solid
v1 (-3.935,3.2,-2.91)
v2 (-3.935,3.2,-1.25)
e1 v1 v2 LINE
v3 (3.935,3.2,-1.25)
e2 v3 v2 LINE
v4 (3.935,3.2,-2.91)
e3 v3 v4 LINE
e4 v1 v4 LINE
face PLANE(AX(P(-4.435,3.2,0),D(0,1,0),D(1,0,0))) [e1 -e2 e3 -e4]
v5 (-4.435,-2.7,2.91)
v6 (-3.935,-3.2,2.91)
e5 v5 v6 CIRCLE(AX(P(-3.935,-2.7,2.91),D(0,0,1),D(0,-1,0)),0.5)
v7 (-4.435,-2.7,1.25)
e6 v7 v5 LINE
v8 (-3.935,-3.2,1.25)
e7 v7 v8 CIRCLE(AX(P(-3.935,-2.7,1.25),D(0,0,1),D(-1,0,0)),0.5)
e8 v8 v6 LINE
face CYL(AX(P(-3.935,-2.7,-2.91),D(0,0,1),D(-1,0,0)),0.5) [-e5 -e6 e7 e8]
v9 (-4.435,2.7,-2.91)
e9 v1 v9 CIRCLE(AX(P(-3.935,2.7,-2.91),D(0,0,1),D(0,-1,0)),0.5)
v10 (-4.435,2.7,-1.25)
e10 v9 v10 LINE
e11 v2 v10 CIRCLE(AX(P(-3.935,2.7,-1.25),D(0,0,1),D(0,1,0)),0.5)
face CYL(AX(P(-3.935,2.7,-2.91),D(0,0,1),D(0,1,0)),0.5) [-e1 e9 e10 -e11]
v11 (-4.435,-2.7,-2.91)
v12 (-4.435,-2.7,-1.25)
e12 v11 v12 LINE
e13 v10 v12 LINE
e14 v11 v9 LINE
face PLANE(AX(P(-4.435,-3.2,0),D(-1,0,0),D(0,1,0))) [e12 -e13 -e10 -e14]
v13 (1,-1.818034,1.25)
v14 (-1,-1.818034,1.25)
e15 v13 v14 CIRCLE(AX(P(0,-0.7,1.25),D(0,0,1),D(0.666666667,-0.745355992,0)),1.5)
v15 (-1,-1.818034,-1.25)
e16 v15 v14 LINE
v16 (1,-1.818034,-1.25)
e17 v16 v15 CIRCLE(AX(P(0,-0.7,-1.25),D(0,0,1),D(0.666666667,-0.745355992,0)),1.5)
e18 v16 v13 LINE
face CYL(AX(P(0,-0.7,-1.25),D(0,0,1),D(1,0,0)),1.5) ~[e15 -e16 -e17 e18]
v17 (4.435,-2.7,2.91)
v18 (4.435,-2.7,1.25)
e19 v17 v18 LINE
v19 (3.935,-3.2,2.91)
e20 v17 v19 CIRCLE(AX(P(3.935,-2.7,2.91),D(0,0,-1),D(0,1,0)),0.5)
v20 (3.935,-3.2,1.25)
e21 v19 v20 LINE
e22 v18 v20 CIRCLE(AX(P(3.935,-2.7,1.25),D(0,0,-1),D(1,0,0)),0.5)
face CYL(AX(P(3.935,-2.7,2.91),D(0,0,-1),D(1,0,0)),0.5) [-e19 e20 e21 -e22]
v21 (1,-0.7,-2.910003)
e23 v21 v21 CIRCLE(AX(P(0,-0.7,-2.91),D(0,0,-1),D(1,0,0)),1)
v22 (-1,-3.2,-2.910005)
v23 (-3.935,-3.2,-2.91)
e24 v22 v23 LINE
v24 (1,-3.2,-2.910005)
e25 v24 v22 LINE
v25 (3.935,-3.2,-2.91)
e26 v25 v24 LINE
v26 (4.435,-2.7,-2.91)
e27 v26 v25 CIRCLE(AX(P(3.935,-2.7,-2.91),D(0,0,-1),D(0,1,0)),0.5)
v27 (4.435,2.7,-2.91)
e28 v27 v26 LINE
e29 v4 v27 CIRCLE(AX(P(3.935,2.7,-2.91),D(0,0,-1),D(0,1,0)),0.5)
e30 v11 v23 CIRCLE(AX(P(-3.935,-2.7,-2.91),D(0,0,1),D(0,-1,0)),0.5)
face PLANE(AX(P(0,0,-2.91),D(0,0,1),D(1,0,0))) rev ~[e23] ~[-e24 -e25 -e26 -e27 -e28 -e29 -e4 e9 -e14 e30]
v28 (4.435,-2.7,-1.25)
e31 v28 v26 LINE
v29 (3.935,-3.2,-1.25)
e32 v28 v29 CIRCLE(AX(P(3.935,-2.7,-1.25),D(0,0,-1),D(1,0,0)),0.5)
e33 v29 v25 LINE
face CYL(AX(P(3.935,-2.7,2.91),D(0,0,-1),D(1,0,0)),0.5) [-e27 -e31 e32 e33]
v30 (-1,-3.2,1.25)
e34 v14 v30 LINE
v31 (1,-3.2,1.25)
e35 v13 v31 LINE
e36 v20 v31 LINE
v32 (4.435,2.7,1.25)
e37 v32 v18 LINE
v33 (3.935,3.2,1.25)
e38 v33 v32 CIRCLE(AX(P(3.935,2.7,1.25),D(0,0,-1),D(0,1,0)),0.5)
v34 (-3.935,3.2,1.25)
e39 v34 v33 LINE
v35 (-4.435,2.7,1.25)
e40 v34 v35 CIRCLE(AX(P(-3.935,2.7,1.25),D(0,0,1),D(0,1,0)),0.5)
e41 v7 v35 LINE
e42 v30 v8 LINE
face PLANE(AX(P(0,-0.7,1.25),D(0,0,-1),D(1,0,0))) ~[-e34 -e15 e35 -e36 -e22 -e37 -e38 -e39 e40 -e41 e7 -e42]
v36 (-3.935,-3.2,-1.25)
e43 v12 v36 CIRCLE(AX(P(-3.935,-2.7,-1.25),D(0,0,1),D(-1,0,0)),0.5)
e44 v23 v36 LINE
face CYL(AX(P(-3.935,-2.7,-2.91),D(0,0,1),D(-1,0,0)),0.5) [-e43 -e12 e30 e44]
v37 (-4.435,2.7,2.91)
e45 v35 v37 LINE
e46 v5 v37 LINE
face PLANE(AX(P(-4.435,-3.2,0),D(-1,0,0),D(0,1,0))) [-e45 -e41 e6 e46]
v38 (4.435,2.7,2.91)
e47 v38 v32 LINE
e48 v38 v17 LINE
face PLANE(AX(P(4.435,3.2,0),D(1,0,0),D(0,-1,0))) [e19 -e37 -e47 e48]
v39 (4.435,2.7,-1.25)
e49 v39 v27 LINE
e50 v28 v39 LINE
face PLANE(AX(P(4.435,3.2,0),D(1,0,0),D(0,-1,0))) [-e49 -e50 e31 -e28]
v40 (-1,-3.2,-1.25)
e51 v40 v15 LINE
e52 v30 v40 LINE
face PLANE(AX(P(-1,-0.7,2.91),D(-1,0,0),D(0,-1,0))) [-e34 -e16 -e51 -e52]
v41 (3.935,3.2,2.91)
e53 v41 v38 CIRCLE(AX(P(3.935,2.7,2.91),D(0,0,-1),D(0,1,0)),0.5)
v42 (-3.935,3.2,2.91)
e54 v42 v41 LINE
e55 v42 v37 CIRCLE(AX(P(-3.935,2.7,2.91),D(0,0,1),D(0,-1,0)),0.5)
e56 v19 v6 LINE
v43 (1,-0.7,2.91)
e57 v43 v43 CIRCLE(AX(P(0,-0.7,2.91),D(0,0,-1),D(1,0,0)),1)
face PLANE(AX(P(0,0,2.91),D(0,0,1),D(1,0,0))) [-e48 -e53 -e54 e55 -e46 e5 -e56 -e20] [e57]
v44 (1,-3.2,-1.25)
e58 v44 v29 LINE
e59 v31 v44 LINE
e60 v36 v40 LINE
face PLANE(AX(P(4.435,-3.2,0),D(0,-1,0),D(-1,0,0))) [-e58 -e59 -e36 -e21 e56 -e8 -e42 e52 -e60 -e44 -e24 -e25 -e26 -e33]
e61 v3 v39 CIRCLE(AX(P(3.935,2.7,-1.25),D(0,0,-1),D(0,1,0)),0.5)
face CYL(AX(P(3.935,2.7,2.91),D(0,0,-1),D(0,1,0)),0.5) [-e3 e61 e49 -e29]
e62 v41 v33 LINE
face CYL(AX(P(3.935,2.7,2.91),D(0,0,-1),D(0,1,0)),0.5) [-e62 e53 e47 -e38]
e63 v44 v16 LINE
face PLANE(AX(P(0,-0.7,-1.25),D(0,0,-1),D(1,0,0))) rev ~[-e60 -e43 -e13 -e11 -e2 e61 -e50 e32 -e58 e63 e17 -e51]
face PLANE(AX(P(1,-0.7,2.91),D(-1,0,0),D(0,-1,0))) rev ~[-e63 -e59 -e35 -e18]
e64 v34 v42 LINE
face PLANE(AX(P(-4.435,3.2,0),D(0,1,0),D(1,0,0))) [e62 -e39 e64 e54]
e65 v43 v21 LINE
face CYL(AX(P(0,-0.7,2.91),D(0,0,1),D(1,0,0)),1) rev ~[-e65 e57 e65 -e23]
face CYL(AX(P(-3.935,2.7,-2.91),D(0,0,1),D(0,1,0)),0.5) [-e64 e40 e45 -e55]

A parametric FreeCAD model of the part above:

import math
import FreeCAD as App
import Part
import Sketcher
from FreeCAD import Vector
Q = App.Units.Quantity


def edges_at(feature, points):
    """Names of the edges that pass closest to the given points."""
    edges = feature.Shape.Edges
    near = lambda p: min(range(len(edges)), key=lambda i: edges[i].distToShape(Part.Vertex(*p))[0])
    return sorted({f"Edge{near(p) + 1}" for p in points})


def add_polygon(sketch, points):
    """Adds a closed chain of lines whose ends are joined by coincident constraints."""
    first, n = sketch.GeometryCount, len(points)
    for a, b in zip(points, points[1:] + points[:1]):
        sketch.addGeometry(Part.LineSegment(App.Vector(*a, 0), App.Vector(*b, 0)), False)
    for i in range(n):
        sketch.addConstraint(Sketcher.Constraint("Coincident", first + i, 2, first + (i + 1) % n, 1))

doc = App.newDocument("Part")
body = doc.addObject("PartDesign::Body", "Body")

sketch1 = body.newObject("Sketcher::SketchObject", "Sketch")
sketch1.AttachmentSupport = (doc.getObject("XY_Plane"), [""])
sketch1.MapMode = "FlatFace"
add_polygon(sketch1, [(4, 3), (-4, 3), (-4, -3), (4, -3)])
sketch1.addConstraint(Sketcher.Constraint("Horizontal", 0))
sketch1.addConstraint(Sketcher.Constraint("Vertical", 1))
sketch1.addConstraint(Sketcher.Constraint("Horizontal", 2))
sketch1.addConstraint(Sketcher.Constraint("Vertical", 3))
sketch1.addConstraint(Sketcher.Constraint("Symmetric", 0, 2, 2, 2, -1, 1))
sketch1.addConstraint(Sketcher.Constraint("DistanceY", 1, 2, 1, 1, Q("6.4 mm")))
sketch1.addConstraint(Sketcher.Constraint("DistanceX", 0, 2, 0, 1, Q("8.87 mm")))
pad1 = body.newObject("PartDesign::Pad", "Pad")
pad1.Profile = sketch1
pad1.Length = 5.82
pad1.Midplane = True
doc.recompute()

fillet = body.newObject("PartDesign::Fillet", "Fillet")
fillet.Base = (pad1, edges_at(pad1, [
    (4.435, -3.2, 0),
    (4.435, 3.2, 0),
    (-4.435, 3.2, 0),
    (-4.435, -3.2, 0),
]))
fillet.Radius = 0.5

sketch2 = body.newObject("Sketcher::SketchObject", "Sketch001")
sketch2.AttachmentSupport = (doc.getObject("XY_Plane"), [""])
sketch2.MapMode = "FlatFace"
sketch2.AttachmentOffset = App.Placement(Vector(0, 0, 2.91), App.Rotation())
sketch2.addGeometry(Part.Circle(Vector(0, -0.7, 0), Vector(0, 0, 1), 1), False)
sketch2.addConstraint(Sketcher.Constraint("PointOnObject", 0, 3, -2))
sketch2.addConstraint(Sketcher.Constraint("Diameter", 0, Q("2 mm")))
sketch2.addConstraint(Sketcher.Constraint("DistanceY", 0, 3, -1, 1, Q("0.7 mm")))
pocket1 = body.newObject("PartDesign::Pocket", "Pocket")
pocket1.Profile = sketch2
pocket1.Type = "ThroughAll"

sketch3 = body.newObject("Sketcher::SketchObject", "Sketch002")
sketch3.AttachmentSupport = (doc.getObject("XZ_Plane"), [""])
sketch3.MapMode = "FlatFace"
sketch3.AttachmentOffset = App.Placement(Vector(0, 0, 0.7), App.Rotation())
add_polygon(sketch3, [(1.5, -1.2), (1.5, 1.2), (6.2, 1.2), (6.2, -1.2)])
sketch3.addConstraint(Sketcher.Constraint("Vertical", 0))
sketch3.addConstraint(Sketcher.Constraint("Horizontal", 1))
sketch3.addConstraint(Sketcher.Constraint("Vertical", 2))
sketch3.addConstraint(Sketcher.Constraint("Horizontal", 3))
sketch3.addConstraint(Sketcher.Constraint("DistanceX", -1, 1, 0, 2, Q("1.5 mm")))
sketch3.addConstraint(Sketcher.Constraint("DistanceY", 0, 1, 0, 2, Q("2.5 mm")))
sketch3.addConstraint(Sketcher.Constraint("DistanceY", -1, 1, 0, 2, Q("1.25 mm")))
sketch3.addConstraint(Sketcher.Constraint("DistanceX", 1, 1, 1, 2, Q("4.6692 mm")))
groove = body.newObject("PartDesign::Groove", "Groove")
groove.Profile = sketch3
groove.ReferenceAxis = (sketch3, ["V_Axis"])
groove.Angle = 360

sketch4 = body.newObject("Sketcher::SketchObject", "Sketch003")
sketch4.AttachmentSupport = (doc.getObject("XY_Plane"), [""])
sketch4.MapMode = "FlatFace"
sketch4.AttachmentOffset = App.Placement(Vector(0, 0, 2.91), App.Rotation())
sketch4.addGeometry(Part.LineSegment(Vector(1, -3.2, 0), Vector(1, -0.7, 0)), False)
sketch4.addGeometry(Part.ArcOfCircle(Part.Circle(Vector(0, -0.7, 0), Vector(0, 0, 1), 1), math.radians(180), math.radians(360)), False)
sketch4.addGeometry(Part.LineSegment(Vector(-1, -0.7, 0), Vector(-1, -3.2, 0)), False)
sketch4.addGeometry(Part.LineSegment(Vector(-1, -3.2, 0), Vector(1, -3.2, 0)), False)
sketch4.addConstraint(Sketcher.Constraint("Tangent", 0, 2, 1, 2))
sketch4.addConstraint(Sketcher.Constraint("Tangent", 1, 1, 2, 1))
sketch4.addConstraint(Sketcher.Constraint("Coincident", 2, 2, 3, 1))
sketch4.addConstraint(Sketcher.Constraint("Coincident", 3, 2, 0, 1))
sketch4.addConstraint(Sketcher.Constraint("Vertical", 0))
sketch4.addConstraint(Sketcher.Constraint("Vertical", 2))
sketch4.addConstraint(Sketcher.Constraint("Horizontal", 3))
sketch4.addConstraint(Sketcher.Constraint("PointOnObject", 1, 3, -2))
sketch4.addConstraint(Sketcher.Constraint("Radius", 1, Q("1 mm")))
sketch4.addConstraint(Sketcher.Constraint("DistanceY", 0, 1, 0, 2, Q("2.5 mm")))
sketch4.addConstraint(Sketcher.Constraint("DistanceY", 1, 3, -1, 1, Q("0.7 mm")))
pad2 = body.newObject("PartDesign::Pad", "Pad001")
pad2.Profile = sketch4
pad2.Type = "UpToLast"
pad2.Reversed = True

doc.recompute()
